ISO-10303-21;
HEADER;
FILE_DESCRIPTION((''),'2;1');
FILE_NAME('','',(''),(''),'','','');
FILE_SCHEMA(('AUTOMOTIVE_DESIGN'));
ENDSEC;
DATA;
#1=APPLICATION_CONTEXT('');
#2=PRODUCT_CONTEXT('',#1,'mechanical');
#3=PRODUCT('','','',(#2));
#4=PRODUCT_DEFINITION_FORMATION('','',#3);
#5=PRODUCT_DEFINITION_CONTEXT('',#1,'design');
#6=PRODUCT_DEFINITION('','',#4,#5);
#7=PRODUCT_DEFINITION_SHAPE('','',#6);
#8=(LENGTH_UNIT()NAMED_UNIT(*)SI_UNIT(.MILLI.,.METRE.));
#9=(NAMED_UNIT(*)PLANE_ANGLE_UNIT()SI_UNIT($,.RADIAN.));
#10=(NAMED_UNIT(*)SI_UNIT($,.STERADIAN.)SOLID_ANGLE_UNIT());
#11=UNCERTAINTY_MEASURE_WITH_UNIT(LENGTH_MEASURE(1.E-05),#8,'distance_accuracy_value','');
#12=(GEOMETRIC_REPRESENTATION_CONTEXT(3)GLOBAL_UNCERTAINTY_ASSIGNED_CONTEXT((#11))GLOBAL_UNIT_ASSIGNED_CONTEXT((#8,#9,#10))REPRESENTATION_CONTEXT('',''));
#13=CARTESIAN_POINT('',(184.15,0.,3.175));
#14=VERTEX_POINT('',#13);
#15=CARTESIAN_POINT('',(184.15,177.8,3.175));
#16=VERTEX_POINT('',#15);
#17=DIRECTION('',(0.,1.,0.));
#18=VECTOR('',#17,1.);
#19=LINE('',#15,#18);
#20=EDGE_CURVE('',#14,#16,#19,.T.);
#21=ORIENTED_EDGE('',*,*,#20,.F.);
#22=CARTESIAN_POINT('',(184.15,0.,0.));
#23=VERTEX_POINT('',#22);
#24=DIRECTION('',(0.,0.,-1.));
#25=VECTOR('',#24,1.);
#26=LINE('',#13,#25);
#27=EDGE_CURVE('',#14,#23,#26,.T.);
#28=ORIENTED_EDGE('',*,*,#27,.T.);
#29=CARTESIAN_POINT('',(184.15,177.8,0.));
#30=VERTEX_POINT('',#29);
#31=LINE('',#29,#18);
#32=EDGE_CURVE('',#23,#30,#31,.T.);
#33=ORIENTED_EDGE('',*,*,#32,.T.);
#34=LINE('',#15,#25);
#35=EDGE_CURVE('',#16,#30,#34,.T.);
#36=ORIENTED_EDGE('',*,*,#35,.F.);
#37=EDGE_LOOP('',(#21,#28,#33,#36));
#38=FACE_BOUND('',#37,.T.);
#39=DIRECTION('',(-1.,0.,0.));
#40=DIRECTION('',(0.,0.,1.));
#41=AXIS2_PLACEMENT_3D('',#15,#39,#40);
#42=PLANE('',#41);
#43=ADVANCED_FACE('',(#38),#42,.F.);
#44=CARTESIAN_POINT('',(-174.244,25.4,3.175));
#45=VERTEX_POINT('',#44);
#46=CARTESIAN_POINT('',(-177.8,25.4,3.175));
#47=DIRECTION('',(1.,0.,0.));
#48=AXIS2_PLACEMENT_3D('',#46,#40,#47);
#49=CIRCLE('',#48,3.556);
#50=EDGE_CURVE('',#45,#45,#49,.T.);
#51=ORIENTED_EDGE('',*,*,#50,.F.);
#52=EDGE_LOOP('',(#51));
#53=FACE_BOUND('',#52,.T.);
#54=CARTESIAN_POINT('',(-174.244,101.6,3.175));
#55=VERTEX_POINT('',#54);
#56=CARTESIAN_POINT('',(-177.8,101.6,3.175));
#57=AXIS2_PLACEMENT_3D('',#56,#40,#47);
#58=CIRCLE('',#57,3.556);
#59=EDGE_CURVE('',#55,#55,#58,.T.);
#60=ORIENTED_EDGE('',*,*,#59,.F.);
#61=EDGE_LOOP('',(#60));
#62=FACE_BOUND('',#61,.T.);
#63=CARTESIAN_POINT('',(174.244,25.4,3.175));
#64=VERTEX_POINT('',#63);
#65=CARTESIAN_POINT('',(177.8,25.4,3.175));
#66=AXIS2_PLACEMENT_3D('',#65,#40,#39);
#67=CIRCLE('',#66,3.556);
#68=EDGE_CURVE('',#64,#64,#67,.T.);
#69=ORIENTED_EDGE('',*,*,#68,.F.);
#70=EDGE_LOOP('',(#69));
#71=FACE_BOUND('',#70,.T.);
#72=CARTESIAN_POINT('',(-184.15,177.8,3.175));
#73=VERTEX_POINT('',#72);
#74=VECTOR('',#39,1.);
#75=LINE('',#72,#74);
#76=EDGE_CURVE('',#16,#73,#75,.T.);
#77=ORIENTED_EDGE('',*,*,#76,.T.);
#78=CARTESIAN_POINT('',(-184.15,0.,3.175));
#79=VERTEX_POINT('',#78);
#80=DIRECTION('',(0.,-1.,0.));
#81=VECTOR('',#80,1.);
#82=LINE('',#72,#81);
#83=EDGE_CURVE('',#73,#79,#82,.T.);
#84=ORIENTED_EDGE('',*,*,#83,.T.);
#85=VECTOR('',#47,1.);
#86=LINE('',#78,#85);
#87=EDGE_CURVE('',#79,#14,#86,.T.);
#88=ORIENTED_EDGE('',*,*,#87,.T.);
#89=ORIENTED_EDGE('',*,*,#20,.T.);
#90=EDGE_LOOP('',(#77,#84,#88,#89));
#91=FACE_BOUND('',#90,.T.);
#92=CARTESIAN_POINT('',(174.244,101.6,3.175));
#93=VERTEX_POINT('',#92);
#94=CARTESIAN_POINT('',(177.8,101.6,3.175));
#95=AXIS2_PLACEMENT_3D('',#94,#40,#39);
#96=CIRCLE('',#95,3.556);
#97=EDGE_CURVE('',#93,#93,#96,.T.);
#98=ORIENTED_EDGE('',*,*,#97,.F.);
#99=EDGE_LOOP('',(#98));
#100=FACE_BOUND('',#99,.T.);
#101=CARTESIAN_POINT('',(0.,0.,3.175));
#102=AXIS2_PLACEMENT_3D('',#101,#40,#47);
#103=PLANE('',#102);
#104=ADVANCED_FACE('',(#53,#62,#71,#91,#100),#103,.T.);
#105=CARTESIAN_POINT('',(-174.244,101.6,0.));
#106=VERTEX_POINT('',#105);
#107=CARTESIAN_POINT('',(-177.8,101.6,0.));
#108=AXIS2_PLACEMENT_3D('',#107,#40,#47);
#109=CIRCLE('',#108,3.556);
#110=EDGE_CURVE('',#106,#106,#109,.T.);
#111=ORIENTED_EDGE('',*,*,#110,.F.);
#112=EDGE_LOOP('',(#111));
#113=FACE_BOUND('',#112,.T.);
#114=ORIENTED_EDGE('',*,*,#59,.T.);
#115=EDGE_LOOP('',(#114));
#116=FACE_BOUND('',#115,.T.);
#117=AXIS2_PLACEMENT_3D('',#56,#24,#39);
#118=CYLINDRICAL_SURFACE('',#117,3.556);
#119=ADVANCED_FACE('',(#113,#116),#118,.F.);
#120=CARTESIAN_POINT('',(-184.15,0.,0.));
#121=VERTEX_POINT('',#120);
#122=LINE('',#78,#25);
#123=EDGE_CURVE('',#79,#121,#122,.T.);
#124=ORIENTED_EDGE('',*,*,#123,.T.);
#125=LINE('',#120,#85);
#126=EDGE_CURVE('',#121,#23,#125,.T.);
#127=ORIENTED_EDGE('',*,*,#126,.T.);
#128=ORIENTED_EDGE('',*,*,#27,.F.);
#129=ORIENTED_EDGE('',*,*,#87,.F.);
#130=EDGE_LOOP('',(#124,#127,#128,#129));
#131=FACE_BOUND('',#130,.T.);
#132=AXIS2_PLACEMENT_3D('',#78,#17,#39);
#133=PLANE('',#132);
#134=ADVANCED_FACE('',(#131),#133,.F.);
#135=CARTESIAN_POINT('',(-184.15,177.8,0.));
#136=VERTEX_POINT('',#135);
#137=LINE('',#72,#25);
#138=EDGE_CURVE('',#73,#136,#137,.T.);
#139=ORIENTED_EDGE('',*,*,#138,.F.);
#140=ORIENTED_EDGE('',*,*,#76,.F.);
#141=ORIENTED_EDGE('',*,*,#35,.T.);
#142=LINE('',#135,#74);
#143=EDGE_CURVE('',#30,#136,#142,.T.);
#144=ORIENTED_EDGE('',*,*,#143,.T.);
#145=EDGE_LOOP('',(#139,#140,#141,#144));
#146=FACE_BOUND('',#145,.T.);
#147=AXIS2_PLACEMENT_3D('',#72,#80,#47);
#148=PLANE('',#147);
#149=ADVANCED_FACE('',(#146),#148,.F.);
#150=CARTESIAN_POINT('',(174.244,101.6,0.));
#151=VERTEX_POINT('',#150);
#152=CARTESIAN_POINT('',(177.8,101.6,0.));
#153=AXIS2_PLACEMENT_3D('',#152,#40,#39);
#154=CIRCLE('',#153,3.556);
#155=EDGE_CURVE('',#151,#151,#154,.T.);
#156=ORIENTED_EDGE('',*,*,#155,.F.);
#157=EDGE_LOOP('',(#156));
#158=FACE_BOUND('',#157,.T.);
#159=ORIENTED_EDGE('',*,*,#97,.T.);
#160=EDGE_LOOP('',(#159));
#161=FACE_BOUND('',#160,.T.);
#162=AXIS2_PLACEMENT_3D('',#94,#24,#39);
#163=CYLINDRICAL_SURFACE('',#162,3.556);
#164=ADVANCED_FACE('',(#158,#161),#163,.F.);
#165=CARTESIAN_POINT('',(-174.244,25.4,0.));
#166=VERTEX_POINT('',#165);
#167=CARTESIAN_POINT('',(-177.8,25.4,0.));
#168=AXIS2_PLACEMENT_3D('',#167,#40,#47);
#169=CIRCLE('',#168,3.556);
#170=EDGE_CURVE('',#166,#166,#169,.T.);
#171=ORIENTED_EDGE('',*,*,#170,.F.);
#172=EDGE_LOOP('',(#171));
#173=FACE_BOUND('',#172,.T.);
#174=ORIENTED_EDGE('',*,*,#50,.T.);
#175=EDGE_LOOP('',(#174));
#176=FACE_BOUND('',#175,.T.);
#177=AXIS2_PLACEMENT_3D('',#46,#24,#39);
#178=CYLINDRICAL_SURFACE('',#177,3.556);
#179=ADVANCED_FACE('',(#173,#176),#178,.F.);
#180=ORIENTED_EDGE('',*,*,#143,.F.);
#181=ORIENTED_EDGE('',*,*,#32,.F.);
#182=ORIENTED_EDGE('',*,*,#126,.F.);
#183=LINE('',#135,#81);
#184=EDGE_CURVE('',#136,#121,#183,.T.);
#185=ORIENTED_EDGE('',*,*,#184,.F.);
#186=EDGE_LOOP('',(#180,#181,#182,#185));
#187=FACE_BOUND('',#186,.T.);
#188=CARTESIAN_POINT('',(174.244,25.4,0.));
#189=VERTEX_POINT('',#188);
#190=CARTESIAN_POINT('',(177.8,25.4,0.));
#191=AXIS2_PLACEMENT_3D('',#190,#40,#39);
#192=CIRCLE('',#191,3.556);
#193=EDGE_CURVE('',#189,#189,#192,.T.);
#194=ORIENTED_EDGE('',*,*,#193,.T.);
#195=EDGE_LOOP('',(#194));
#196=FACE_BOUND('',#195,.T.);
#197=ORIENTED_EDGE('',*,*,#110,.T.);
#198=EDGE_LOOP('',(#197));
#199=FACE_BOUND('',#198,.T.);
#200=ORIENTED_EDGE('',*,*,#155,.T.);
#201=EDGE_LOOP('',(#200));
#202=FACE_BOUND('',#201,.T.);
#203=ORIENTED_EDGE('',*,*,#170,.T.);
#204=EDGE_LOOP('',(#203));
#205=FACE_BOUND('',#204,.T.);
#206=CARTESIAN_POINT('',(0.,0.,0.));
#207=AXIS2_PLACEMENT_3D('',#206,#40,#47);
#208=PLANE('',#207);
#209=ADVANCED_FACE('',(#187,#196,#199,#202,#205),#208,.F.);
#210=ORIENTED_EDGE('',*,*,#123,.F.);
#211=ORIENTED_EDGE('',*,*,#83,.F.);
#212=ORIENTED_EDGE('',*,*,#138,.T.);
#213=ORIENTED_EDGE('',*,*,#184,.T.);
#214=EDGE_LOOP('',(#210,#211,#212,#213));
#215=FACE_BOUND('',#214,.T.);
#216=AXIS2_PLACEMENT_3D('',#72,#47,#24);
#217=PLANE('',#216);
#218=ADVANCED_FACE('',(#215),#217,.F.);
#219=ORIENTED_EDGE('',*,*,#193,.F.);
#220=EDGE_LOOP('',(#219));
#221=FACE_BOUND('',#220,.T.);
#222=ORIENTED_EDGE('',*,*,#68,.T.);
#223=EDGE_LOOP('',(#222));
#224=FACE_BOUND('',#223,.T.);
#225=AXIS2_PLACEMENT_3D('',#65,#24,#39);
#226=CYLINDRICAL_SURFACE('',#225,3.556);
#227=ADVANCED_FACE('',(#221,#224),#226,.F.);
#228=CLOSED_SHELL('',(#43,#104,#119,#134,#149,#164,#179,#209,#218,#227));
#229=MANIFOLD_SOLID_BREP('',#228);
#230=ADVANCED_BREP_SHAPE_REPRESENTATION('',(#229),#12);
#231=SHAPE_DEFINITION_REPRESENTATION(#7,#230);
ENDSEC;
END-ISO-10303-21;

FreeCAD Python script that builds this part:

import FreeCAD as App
import Part
import Sketcher
from FreeCAD import Vector
Q = App.Units.Quantity


def add_polygon(sketch, points):
    """Adds a closed chain of lines whose ends are joined by coincident constraints."""
    first, n = sketch.GeometryCount, len(points)
    for a, b in zip(points, points[1:] + points[:1]):
        sketch.addGeometry(Part.LineSegment(App.Vector(*a, 0), App.Vector(*b, 0)), False)
    for i in range(n):
        sketch.addConstraint(Sketcher.Constraint("Coincident", first + i, 2, first + (i + 1) % n, 1))

doc = App.newDocument("Part")
body = doc.addObject("PartDesign::Body", "Body")

sketch1 = body.newObject("Sketcher::SketchObject", "Sketch")
sketch1.AttachmentSupport = (doc.getObject("XY_Plane"), [""])
sketch1.MapMode = "FlatFace"
add_polygon(sketch1, [(-184.2, 177.8), (-184.2, 0), (184.2, 0), (184.2, 177.8)])
sketch1.addGeometry(Part.Circle(Vector(-177.8, 25.4, 0), Vector(0, 0, 1), 3.6), False)
sketch1.addGeometry(Part.Circle(Vector(177.8, 25.4, 0), Vector(0, 0, 1), 3.6), False)
sketch1.addGeometry(Part.Circle(Vector(-177.8, 101.6, 0), Vector(0, 0, 1), 3.6), False)
sketch1.addGeometry(Part.Circle(Vector(177.8, 101.6, 0), Vector(0, 0, 1), 3.6), False)
sketch1.addConstraint(Sketcher.Constraint("Vertical", 0))
sketch1.addConstraint(Sketcher.Constraint("Horizontal", 1))
sketch1.addConstraint(Sketcher.Constraint("Vertical", 2))
sketch1.addConstraint(Sketcher.Constraint("Horizontal", 3))
sketch1.addConstraint(Sketcher.Constraint("Equal", 4, 5))
sketch1.addConstraint(Sketcher.Constraint("Equal", 5, 6))
sketch1.addConstraint(Sketcher.Constraint("Equal", 6, 7))
sketch1.addConstraint(Sketcher.Constraint("Symmetric", 0, 2, 1, 2, -1, 1))
sketch1.addConstraint(Sketcher.Constraint("Symmetric", 4, 3, 5, 3, -2))
sketch1.addConstraint(Sketcher.Constraint("Symmetric", 6, 3, 7, 3, -2))
sketch1.addConstraint(Sketcher.Constraint("Vertical", 4, 3, 6, 3))
sketch1.addConstraint(Sketcher.Constraint("Diameter", 4, Q("0.28 in")))
sketch1.addConstraint(Sketcher.Constraint("DistanceY", 0, 2, 0, 1, Q("7 in")))
sketch1.addConstraint(Sketcher.Constraint("DistanceX", 1, 1, 1, 2, Q("14.5 in")))
sketch1.addConstraint(Sketcher.Constraint("DistanceX", 4, 3, -1, 1, Q("7 in")))
sketch1.addConstraint(Sketcher.Constraint("DistanceY", -1, 1, 4, 3, Q("1 in")))
sketch1.addConstraint(Sketcher.Constraint("DistanceY", -1, 1, 6, 3, Q("4 in")))
pad1 = body.newObject("PartDesign::Pad", "Pad")
pad1.Profile = sketch1
pad1.Length = Q("0.125 in")

doc.recompute()
